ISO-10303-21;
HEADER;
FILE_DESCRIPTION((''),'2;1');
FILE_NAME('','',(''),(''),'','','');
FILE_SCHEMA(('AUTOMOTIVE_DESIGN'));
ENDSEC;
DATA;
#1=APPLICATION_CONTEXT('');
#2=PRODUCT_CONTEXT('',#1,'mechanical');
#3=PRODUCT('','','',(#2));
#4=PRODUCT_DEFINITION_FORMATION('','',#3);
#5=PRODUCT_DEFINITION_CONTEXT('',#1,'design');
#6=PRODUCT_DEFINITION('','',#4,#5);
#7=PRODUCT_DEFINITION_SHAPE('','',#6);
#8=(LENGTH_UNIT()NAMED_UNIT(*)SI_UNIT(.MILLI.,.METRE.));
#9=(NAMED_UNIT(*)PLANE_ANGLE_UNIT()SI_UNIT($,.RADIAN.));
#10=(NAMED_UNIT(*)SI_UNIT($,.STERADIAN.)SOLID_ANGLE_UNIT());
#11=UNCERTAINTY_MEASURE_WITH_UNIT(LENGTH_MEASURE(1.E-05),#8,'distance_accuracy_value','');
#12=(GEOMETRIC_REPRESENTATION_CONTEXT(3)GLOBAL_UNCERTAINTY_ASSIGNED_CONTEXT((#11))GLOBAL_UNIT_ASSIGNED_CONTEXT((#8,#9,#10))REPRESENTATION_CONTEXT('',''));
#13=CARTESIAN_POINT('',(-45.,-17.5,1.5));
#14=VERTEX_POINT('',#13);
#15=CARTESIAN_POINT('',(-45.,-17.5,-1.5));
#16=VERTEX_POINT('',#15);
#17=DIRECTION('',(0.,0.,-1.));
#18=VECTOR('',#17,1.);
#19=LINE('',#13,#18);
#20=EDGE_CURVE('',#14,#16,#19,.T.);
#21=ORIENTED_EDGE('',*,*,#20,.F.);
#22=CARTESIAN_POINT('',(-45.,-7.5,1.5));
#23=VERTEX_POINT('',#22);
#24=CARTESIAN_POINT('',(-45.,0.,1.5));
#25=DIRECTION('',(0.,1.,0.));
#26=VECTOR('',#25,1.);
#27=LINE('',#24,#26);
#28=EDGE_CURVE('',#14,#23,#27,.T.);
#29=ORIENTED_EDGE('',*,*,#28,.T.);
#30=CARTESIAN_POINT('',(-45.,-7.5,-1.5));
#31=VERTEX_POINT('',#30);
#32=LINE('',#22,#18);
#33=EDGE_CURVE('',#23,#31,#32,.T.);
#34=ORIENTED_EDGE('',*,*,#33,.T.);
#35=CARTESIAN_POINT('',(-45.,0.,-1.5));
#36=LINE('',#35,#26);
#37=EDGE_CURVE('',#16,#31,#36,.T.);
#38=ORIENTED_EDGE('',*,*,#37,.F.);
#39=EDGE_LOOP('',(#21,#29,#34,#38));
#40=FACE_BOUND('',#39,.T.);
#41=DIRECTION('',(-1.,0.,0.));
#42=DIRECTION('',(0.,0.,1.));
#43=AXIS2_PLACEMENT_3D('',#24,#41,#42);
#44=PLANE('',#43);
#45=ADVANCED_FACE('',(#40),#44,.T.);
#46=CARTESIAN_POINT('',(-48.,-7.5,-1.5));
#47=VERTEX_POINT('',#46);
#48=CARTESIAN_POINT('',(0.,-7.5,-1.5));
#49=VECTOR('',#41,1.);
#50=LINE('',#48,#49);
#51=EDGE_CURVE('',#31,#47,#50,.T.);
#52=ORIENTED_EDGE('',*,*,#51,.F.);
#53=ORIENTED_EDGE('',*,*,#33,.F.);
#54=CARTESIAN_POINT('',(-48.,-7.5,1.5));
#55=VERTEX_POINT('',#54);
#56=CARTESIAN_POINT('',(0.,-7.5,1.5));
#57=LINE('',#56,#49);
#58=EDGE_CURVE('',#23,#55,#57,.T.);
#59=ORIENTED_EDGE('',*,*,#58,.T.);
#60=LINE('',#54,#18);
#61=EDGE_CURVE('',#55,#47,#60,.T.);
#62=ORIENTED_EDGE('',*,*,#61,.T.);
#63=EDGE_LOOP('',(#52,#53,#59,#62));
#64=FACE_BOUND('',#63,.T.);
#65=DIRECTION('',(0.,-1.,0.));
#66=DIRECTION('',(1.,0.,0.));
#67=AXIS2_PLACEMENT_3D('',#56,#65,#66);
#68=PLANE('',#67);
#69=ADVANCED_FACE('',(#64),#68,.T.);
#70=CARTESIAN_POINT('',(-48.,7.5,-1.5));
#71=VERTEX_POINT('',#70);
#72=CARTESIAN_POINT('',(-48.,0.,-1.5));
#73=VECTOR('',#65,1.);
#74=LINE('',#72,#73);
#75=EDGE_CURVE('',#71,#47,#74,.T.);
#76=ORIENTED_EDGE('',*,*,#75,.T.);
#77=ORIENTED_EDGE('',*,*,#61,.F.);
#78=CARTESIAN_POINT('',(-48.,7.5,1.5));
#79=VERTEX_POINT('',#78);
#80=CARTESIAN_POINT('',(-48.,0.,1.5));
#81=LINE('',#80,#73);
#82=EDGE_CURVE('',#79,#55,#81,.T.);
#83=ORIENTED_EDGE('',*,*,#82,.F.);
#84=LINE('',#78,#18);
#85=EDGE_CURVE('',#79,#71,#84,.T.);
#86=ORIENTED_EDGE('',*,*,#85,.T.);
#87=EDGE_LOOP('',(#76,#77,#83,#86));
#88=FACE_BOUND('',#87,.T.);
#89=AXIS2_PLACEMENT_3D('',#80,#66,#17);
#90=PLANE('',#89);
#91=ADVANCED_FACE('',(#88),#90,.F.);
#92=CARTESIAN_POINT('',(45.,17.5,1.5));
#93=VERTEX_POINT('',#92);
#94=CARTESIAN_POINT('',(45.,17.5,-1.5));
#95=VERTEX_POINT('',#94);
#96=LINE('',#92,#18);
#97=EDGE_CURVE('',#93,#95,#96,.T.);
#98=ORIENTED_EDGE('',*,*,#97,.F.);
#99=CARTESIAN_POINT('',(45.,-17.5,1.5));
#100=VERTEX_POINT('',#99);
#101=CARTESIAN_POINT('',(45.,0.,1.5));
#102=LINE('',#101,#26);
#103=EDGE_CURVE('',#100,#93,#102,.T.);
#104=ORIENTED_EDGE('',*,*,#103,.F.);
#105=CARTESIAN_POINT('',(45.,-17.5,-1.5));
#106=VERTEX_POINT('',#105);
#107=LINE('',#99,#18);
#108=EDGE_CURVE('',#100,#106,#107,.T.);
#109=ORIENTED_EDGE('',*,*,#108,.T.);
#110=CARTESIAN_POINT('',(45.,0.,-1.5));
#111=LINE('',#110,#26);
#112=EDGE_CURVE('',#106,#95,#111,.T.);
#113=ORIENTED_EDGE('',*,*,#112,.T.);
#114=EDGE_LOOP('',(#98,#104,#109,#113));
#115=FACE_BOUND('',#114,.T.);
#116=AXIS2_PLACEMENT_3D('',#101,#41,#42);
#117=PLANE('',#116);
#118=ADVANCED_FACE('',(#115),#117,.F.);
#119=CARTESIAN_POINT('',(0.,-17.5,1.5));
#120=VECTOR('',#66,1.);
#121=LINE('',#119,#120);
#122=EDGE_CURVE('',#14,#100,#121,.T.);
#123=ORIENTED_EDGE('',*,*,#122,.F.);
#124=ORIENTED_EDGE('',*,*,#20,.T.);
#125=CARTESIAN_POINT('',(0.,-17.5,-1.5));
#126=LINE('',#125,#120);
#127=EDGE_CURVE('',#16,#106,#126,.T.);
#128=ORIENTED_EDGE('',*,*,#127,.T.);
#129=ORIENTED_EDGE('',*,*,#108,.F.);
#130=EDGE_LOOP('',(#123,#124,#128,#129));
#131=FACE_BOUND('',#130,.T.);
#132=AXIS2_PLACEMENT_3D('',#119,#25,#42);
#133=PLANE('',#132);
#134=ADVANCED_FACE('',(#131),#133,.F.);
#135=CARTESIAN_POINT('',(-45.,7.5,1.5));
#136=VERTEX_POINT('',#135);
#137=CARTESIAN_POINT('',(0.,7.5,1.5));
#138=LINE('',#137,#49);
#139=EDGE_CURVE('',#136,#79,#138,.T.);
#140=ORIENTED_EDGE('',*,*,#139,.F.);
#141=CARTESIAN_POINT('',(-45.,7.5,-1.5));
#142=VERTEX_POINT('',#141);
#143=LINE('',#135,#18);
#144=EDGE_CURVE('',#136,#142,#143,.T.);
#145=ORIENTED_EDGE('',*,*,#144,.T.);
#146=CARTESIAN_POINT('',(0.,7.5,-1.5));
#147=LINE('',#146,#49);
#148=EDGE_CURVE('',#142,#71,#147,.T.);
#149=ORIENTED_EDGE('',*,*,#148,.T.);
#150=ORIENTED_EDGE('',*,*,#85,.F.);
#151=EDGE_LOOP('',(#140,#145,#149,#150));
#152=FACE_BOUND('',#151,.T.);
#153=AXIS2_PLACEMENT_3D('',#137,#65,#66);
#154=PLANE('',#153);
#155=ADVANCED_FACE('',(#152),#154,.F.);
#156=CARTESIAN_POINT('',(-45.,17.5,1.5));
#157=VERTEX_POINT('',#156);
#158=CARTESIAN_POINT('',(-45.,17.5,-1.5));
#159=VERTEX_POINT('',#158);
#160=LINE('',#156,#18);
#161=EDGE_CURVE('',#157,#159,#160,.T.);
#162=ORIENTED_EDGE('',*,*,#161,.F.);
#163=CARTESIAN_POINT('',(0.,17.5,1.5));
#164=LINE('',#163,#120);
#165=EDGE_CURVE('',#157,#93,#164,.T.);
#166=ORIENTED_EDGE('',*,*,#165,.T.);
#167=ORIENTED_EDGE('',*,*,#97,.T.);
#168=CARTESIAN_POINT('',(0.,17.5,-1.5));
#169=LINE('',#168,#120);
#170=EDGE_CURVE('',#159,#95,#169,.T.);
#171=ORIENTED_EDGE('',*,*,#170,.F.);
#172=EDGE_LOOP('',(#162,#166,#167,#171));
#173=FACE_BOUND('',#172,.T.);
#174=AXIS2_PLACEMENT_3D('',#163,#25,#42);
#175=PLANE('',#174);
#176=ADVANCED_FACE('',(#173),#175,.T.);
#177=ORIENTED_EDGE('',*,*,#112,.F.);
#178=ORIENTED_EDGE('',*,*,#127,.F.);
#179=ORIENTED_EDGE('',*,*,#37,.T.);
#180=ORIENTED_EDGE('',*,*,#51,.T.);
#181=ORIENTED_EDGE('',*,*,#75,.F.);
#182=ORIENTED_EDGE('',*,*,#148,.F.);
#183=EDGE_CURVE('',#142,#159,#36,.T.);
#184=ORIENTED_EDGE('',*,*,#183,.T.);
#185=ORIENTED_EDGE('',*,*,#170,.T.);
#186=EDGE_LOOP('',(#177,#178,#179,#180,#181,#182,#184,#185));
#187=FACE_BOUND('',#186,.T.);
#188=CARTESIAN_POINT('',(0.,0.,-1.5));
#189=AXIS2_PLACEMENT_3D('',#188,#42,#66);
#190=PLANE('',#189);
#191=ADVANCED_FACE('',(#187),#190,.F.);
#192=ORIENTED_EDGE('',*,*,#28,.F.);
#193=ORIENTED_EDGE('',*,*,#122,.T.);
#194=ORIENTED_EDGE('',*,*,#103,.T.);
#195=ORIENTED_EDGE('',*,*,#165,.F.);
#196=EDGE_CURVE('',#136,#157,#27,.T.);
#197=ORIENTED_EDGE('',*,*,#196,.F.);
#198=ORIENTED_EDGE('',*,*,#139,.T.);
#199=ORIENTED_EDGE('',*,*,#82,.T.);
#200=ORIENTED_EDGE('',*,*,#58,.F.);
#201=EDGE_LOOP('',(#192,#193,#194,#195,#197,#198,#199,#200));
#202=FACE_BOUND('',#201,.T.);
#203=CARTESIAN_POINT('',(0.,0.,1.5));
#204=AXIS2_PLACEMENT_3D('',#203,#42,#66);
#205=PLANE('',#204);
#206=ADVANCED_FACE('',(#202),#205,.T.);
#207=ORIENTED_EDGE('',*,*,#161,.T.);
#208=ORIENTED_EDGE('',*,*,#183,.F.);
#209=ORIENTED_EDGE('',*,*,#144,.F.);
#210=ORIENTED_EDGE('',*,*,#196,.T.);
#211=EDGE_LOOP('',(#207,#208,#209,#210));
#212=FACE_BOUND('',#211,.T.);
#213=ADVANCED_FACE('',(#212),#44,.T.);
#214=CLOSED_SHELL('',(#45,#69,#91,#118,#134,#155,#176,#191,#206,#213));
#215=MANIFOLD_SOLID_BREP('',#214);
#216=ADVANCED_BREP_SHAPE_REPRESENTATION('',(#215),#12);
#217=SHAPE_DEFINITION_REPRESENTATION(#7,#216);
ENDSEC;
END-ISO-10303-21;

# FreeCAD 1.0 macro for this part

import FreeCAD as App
import Part
import Sketcher

V = App.Vector

doc = App.newDocument("Part")
params = doc.addObject("Spreadsheet::Sheet", "Params")
for row, (alias, value) in enumerate([
    ("sketch1_width", "90 mm"),
    ("sketch1_width2", "3 mm"),
    ("sketch1_height", "10 mm"),
    ("sketch1_height2", "35 mm"),
    ("pad1_length", "3 mm"),
], start=1):
    params.set(f"A{row}", alias)
    params.set(f"B{row}", "=" + value)
    params.setAlias(f"B{row}", alias)

body = doc.addObject("PartDesign::Body", "Body")

sketch1 = body.newObject("Sketcher::SketchObject", "Sketch")
sketch1.AttachmentSupport = (doc.getObject("XY_Plane"), [""])
sketch1.MapMode = "FlatFace"
sketch1.addGeometry(Part.LineSegment(V(-45, -7.5, 0), V(-45, -17.5, 0)), False)
sketch1.addGeometry(Part.LineSegment(V(-45, -17.5, 0), V(45, -17.5, 0)), False)
sketch1.addGeometry(Part.LineSegment(V(45, -17.5, 0), V(45, 17.5, 0)), False)
sketch1.addGeometry(Part.LineSegment(V(45, 17.5, 0), V(-45, 17.5, 0)), False)
sketch1.addGeometry(Part.LineSegment(V(-45, 17.5, 0), V(-45, 7.5, 0)), False)
sketch1.addGeometry(Part.LineSegment(V(-45, 7.5, 0), V(-48, 7.5, 0)), False)
sketch1.addGeometry(Part.LineSegment(V(-48, 7.5, 0), V(-48, -7.5, 0)), False)
sketch1.addGeometry(Part.LineSegment(V(-48, -7.5, 0), V(-45, -7.5, 0)), False)
sketch1.addConstraint(Sketcher.Constraint("Coincident", 0, 2, 1, 1))
sketch1.addConstraint(Sketcher.Constraint("Coincident", 1, 2, 2, 1))
sketch1.addConstraint(Sketcher.Constraint("Coincident", 2, 2, 3, 1))
sketch1.addConstraint(Sketcher.Constraint("Coincident", 3, 2, 4, 1))
sketch1.addConstraint(Sketcher.Constraint("Coincident", 4, 2, 5, 1))
sketch1.addConstraint(Sketcher.Constraint("Coincident", 5, 2, 6, 1))
sketch1.addConstraint(Sketcher.Constraint("Coincident", 6, 2, 7, 1))
sketch1.addConstraint(Sketcher.Constraint("Coincident", 7, 2, 0, 1))
sketch1.addConstraint(Sketcher.Constraint("Vertical", 0))
sketch1.addConstraint(Sketcher.Constraint("Horizontal", 1))
sketch1.addConstraint(Sketcher.Constraint("Vertical", 2))
sketch1.addConstraint(Sketcher.Constraint("Horizontal", 3))
sketch1.addConstraint(Sketcher.Constraint("Vertical", 4))
sketch1.addConstraint(Sketcher.Constraint("Horizontal", 5))
sketch1.addConstraint(Sketcher.Constraint("Vertical", 6))
sketch1.addConstraint(Sketcher.Constraint("Horizontal", 7))
sketch1.addConstraint(Sketcher.Constraint("Symmetric", 0, 2, 2, 2, -1, 1))
sketch1.addConstraint(Sketcher.Constraint("Symmetric", 4, 2, 7, 2, -1))
sketch1.addConstraint(Sketcher.Constraint("DistanceX", 1, 1, 1, 2, 90.0))
sketch1.addConstraint(Sketcher.Constraint("DistanceX", 5, 2, 5, 1, 3.0))
sketch1.addConstraint(Sketcher.Constraint("DistanceY", 0, 2, 0, 1, 10.0))
sketch1.addConstraint(Sketcher.Constraint("DistanceY", 2, 1, 2, 2, 35.0))
sketch1.setExpression("Constraints[18]", "Params.sketch1_width")
sketch1.setExpression("Constraints[19]", "Params.sketch1_width2")
sketch1.setExpression("Constraints[20]", "Params.sketch1_height")
sketch1.setExpression("Constraints[21]", "Params.sketch1_height2")
pad1 = body.newObject("PartDesign::Pad", "Pad")
pad1.Profile = sketch1
pad1.setExpression("Length", "Params.pad1_length")
pad1.Midplane = True

doc.recompute()
